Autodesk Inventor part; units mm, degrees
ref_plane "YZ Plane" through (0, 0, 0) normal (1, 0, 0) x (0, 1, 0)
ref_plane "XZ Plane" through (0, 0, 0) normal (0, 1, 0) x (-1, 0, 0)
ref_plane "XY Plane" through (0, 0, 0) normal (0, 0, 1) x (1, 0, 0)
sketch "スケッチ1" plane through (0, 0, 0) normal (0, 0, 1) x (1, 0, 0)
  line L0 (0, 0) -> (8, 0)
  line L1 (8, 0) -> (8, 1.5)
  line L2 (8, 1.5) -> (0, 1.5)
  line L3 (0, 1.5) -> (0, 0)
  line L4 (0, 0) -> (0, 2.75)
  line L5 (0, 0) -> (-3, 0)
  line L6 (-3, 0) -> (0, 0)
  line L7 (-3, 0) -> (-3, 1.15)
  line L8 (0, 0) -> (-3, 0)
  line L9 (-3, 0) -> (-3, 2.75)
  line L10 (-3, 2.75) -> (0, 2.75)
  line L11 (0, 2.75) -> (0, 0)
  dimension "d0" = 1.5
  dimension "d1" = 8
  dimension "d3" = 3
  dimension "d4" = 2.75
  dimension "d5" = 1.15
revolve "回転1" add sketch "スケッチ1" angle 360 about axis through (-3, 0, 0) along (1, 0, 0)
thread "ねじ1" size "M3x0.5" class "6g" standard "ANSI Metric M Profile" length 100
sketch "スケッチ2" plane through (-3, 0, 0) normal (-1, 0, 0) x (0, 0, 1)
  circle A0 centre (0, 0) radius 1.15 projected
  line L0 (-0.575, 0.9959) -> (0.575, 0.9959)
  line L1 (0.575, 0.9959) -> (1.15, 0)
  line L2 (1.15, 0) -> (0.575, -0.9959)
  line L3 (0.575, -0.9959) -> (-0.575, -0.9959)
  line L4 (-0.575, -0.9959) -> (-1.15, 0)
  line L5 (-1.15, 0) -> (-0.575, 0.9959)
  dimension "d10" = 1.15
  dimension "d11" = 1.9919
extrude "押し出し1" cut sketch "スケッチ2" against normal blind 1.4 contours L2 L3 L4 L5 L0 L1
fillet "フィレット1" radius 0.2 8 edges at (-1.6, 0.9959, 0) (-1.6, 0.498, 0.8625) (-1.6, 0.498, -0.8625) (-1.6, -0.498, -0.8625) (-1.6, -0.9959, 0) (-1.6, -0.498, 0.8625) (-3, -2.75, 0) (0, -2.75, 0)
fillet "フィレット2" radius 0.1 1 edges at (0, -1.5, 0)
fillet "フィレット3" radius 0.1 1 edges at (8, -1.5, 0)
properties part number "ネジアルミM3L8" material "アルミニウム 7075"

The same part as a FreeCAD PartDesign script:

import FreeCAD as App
import Part
import Sketcher

V = App.Vector
Q = App.Units.Quantity


def edges_at(feature, points):
    """Names of the edges that pass closest to the given points."""
    edges = feature.Shape.Edges
    near = lambda p: min(range(len(edges)), key=lambda i: edges[i].distToShape(Part.Vertex(*p))[0])
    return sorted({f"Edge{near(p) + 1}" for p in points})

doc = App.newDocument("Part")
body = doc.addObject("PartDesign::Body", "Body")

# Sketch on XY plane
sketch1 = body.newObject("Sketcher::SketchObject", "Sketch")
sketch1.AttachmentSupport = (doc.getObject("XY_Plane"), [""])
sketch1.MapMode = "FlatFace"
sketch1.addGeometry(Part.LineSegment(V(8, 1.5, 0), V(0, 1.5, 0)), False)
sketch1.addGeometry(Part.LineSegment(V(0, 1.5, 0), V(0, 2.8, 0)), False)
sketch1.addGeometry(Part.LineSegment(V(0, 2.8, 0), V(-3, 2.8, 0)), False)
sketch1.addGeometry(Part.LineSegment(V(-3, 2.8, 0), V(-3, 0, 0)), False)
sketch1.addGeometry(Part.LineSegment(V(-3, 0, 0), V(8, 0, 0)), False)
sketch1.addGeometry(Part.LineSegment(V(8, 0, 0), V(8, 1.5, 0)), False)
sketch1.addConstraint(Sketcher.Constraint("Coincident", 0, 2, 1, 1))
sketch1.addConstraint(Sketcher.Constraint("Coincident", 1, 2, 2, 1))
sketch1.addConstraint(Sketcher.Constraint("Coincident", 2, 2, 3, 1))
sketch1.addConstraint(Sketcher.Constraint("Coincident", 3, 2, 4, 1))
sketch1.addConstraint(Sketcher.Constraint("Coincident", 4, 2, 5, 1))
sketch1.addConstraint(Sketcher.Constraint("Coincident", 5, 2, 0, 1))
sketch1.addConstraint(Sketcher.Constraint("Horizontal", 0))
sketch1.addConstraint(Sketcher.Constraint("Vertical", 1))
sketch1.addConstraint(Sketcher.Constraint("Horizontal", 2))
sketch1.addConstraint(Sketcher.Constraint("Vertical", 3))
sketch1.addConstraint(Sketcher.Constraint("Horizontal", 4))
sketch1.addConstraint(Sketcher.Constraint("Vertical", 5))
sketch1.addConstraint(Sketcher.Constraint("PointOnObject", 0, 2, -2))
sketch1.addConstraint(Sketcher.Constraint("PointOnObject", 3, 2, -1))
sketch1.addConstraint(Sketcher.Constraint("DistanceX", 0, 2, 0, 1, Q("8 mm")))
sketch1.addConstraint(Sketcher.Constraint("DistanceX", 2, 2, 2, 1, Q("3 mm")))
sketch1.addConstraint(Sketcher.Constraint("DistanceY", 5, 1, 5, 2, Q("1.5 mm")))
sketch1.addConstraint(Sketcher.Constraint("DistanceY", 3, 2, 3, 1, Q("2.75 mm")))
revolution = body.newObject("PartDesign::Revolution", "Revolution")
revolution.Profile = sketch1
revolution.ReferenceAxis = (sketch1, ["H_Axis"])
revolution.Angle = 360

# Sketch on YZ plane
sketch2 = body.newObject("Sketcher::SketchObject", "Sketch001")
sketch2.AttachmentSupport = (doc.getObject("YZ_Plane"), [""])
sketch2.MapMode = "FlatFace"
sketch2.AttachmentOffset = App.Placement(V(0, 0, -3), App.Rotation())
sketch2.addGeometry(Part.LineSegment(V(-1, 0.6, 0), V(0, 1.1, 0)), False)
sketch2.addGeometry(Part.LineSegment(V(0, 1.1, 0), V(1, 0.6, 0)), False)
sketch2.addGeometry(Part.LineSegment(V(1, 0.6, 0), V(1, -0.6, 0)), False)
sketch2.addGeometry(Part.LineSegment(V(1, -0.6, 0), V(0, -1.1, 0)), False)
sketch2.addGeometry(Part.LineSegment(V(0, -1.1, 0), V(-1, -0.6, 0)), False)
sketch2.addGeometry(Part.LineSegment(V(-1, -0.6, 0), V(-1, 0.6, 0)), False)
sketch2.addConstraint(Sketcher.Constraint("Coincident", 0, 2, 1, 1))
sketch2.addConstraint(Sketcher.Constraint("Coincident", 1, 2, 2, 1))
sketch2.addConstraint(Sketcher.Constraint("Coincident", 2, 2, 3, 1))
sketch2.addConstraint(Sketcher.Constraint("Coincident", 3, 2, 4, 1))
sketch2.addConstraint(Sketcher.Constraint("Coincident", 4, 2, 5, 1))
sketch2.addConstraint(Sketcher.Constraint("Coincident", 5, 2, 0, 1))
sketch2.addConstraint(Sketcher.Constraint("Vertical", 2))
sketch2.addConstraint(Sketcher.Constraint("Vertical", 5))
sketch2.addConstraint(Sketcher.Constraint("Symmetric", 0, 2, 3, 2, -1, 1))
sketch2.addConstraint(Sketcher.Constraint("Symmetric", 1, 2, 4, 2, -1, 1))
sketch2.addConstraint(Sketcher.Constraint("PointOnObject", 0, 2, -2))
sketch2.addConstraint(Sketcher.Constraint("Parallel", 0, 3))
sketch2.addConstraint(Sketcher.Constraint("Horizontal", 2, 2, 4, 2))
sketch2.addConstraint(Sketcher.Constraint("DistanceY", 2, 2, 2, 1, Q("1.15 mm")))
sketch2.addConstraint(Sketcher.Constraint("Distance", 0, Q("1.15 mm")))
sketch2.addConstraint(Sketcher.Constraint("DistanceY", -1, 1, 0, 2, Q("1.15 mm")))
pocket1 = body.newObject("PartDesign::Pocket", "Pocket")
pocket1.Profile = sketch2
pocket1.Length = 1.4
pocket1.Reversed = True
doc.recompute()

fillet = body.newObject("PartDesign::Fillet", "Fillet")
fillet.Base = (pocket1, edges_at(pocket1, [
    (-1.6, 0.996, 0),
    (-1.6, 0.498, 0.863),
    (-1.6, 0.498, -0.863),
    (-1.6, -0.498, -0.863),
    (-1.6, -0.996, 0),
    (-1.6, -0.498, 0.863),
    (-3, -2.75, 0),
    (0, -2.75, 0),
]))
fillet.Radius = 0.2
doc.recompute()

fillet2 = body.newObject("PartDesign::Fillet", "Fillet001")
fillet2.Base = (fillet, edges_at(fillet, [(0, -1.5, 0)]))
fillet2.Radius = 0.1
doc.recompute()

fillet3 = body.newObject("PartDesign::Fillet", "Fillet002")
fillet3.Base = (fillet2, edges_at(fillet2, [(8, -1.5, 0)]))
fillet3.Radius = 0.1

doc.recompute()
